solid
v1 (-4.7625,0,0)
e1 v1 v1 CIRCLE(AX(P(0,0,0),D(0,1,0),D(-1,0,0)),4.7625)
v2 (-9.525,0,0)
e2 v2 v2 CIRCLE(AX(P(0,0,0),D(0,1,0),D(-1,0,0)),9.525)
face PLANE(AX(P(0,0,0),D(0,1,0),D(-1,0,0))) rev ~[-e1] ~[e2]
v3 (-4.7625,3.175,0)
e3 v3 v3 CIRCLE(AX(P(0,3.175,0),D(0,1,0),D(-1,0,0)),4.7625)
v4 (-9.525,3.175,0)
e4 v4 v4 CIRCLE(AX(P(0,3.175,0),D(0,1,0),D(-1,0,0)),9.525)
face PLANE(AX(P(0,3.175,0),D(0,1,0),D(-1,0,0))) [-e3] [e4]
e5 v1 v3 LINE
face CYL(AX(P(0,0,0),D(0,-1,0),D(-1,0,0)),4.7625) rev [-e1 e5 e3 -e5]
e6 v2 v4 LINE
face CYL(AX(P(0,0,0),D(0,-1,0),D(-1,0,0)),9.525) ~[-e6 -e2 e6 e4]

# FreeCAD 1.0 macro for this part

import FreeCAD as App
import Part
import Sketcher
Q = App.Units.Quantity

doc = App.newDocument("Part")
body = doc.addObject("PartDesign::Body", "Body")

# Sketch on XZ plane
sketch1 = body.newObject("Sketcher::SketchObject", "Sketch")
sketch1.AttachmentSupport = (doc.getObject("XZ_Plane"), [""])
sketch1.MapMode = "FlatFace"
sketch1.addGeometry(Part.Circle(App.Vector(0, 0, 0), App.Vector(0, 0, 1), 9.5), False)
sketch1.addGeometry(Part.Circle(App.Vector(0, 0, 0), App.Vector(0, 0, 1), 4.8), False)
sketch1.addConstraint(Sketcher.Constraint("Coincident", 0, 3, -1, 1))
sketch1.addConstraint(Sketcher.Constraint("Coincident", 1, 3, -1, 1))
sketch1.addConstraint(Sketcher.Constraint("Diameter", 0, Q("0.75 in")))
sketch1.addConstraint(Sketcher.Constraint("Diameter", 1, Q("0.375 in")))
pad1 = body.newObject("PartDesign::Pad", "Pad")
pad1.Profile = sketch1
pad1.Length = Q("0.125 in")
pad1.Reversed = True

doc.recompute()
